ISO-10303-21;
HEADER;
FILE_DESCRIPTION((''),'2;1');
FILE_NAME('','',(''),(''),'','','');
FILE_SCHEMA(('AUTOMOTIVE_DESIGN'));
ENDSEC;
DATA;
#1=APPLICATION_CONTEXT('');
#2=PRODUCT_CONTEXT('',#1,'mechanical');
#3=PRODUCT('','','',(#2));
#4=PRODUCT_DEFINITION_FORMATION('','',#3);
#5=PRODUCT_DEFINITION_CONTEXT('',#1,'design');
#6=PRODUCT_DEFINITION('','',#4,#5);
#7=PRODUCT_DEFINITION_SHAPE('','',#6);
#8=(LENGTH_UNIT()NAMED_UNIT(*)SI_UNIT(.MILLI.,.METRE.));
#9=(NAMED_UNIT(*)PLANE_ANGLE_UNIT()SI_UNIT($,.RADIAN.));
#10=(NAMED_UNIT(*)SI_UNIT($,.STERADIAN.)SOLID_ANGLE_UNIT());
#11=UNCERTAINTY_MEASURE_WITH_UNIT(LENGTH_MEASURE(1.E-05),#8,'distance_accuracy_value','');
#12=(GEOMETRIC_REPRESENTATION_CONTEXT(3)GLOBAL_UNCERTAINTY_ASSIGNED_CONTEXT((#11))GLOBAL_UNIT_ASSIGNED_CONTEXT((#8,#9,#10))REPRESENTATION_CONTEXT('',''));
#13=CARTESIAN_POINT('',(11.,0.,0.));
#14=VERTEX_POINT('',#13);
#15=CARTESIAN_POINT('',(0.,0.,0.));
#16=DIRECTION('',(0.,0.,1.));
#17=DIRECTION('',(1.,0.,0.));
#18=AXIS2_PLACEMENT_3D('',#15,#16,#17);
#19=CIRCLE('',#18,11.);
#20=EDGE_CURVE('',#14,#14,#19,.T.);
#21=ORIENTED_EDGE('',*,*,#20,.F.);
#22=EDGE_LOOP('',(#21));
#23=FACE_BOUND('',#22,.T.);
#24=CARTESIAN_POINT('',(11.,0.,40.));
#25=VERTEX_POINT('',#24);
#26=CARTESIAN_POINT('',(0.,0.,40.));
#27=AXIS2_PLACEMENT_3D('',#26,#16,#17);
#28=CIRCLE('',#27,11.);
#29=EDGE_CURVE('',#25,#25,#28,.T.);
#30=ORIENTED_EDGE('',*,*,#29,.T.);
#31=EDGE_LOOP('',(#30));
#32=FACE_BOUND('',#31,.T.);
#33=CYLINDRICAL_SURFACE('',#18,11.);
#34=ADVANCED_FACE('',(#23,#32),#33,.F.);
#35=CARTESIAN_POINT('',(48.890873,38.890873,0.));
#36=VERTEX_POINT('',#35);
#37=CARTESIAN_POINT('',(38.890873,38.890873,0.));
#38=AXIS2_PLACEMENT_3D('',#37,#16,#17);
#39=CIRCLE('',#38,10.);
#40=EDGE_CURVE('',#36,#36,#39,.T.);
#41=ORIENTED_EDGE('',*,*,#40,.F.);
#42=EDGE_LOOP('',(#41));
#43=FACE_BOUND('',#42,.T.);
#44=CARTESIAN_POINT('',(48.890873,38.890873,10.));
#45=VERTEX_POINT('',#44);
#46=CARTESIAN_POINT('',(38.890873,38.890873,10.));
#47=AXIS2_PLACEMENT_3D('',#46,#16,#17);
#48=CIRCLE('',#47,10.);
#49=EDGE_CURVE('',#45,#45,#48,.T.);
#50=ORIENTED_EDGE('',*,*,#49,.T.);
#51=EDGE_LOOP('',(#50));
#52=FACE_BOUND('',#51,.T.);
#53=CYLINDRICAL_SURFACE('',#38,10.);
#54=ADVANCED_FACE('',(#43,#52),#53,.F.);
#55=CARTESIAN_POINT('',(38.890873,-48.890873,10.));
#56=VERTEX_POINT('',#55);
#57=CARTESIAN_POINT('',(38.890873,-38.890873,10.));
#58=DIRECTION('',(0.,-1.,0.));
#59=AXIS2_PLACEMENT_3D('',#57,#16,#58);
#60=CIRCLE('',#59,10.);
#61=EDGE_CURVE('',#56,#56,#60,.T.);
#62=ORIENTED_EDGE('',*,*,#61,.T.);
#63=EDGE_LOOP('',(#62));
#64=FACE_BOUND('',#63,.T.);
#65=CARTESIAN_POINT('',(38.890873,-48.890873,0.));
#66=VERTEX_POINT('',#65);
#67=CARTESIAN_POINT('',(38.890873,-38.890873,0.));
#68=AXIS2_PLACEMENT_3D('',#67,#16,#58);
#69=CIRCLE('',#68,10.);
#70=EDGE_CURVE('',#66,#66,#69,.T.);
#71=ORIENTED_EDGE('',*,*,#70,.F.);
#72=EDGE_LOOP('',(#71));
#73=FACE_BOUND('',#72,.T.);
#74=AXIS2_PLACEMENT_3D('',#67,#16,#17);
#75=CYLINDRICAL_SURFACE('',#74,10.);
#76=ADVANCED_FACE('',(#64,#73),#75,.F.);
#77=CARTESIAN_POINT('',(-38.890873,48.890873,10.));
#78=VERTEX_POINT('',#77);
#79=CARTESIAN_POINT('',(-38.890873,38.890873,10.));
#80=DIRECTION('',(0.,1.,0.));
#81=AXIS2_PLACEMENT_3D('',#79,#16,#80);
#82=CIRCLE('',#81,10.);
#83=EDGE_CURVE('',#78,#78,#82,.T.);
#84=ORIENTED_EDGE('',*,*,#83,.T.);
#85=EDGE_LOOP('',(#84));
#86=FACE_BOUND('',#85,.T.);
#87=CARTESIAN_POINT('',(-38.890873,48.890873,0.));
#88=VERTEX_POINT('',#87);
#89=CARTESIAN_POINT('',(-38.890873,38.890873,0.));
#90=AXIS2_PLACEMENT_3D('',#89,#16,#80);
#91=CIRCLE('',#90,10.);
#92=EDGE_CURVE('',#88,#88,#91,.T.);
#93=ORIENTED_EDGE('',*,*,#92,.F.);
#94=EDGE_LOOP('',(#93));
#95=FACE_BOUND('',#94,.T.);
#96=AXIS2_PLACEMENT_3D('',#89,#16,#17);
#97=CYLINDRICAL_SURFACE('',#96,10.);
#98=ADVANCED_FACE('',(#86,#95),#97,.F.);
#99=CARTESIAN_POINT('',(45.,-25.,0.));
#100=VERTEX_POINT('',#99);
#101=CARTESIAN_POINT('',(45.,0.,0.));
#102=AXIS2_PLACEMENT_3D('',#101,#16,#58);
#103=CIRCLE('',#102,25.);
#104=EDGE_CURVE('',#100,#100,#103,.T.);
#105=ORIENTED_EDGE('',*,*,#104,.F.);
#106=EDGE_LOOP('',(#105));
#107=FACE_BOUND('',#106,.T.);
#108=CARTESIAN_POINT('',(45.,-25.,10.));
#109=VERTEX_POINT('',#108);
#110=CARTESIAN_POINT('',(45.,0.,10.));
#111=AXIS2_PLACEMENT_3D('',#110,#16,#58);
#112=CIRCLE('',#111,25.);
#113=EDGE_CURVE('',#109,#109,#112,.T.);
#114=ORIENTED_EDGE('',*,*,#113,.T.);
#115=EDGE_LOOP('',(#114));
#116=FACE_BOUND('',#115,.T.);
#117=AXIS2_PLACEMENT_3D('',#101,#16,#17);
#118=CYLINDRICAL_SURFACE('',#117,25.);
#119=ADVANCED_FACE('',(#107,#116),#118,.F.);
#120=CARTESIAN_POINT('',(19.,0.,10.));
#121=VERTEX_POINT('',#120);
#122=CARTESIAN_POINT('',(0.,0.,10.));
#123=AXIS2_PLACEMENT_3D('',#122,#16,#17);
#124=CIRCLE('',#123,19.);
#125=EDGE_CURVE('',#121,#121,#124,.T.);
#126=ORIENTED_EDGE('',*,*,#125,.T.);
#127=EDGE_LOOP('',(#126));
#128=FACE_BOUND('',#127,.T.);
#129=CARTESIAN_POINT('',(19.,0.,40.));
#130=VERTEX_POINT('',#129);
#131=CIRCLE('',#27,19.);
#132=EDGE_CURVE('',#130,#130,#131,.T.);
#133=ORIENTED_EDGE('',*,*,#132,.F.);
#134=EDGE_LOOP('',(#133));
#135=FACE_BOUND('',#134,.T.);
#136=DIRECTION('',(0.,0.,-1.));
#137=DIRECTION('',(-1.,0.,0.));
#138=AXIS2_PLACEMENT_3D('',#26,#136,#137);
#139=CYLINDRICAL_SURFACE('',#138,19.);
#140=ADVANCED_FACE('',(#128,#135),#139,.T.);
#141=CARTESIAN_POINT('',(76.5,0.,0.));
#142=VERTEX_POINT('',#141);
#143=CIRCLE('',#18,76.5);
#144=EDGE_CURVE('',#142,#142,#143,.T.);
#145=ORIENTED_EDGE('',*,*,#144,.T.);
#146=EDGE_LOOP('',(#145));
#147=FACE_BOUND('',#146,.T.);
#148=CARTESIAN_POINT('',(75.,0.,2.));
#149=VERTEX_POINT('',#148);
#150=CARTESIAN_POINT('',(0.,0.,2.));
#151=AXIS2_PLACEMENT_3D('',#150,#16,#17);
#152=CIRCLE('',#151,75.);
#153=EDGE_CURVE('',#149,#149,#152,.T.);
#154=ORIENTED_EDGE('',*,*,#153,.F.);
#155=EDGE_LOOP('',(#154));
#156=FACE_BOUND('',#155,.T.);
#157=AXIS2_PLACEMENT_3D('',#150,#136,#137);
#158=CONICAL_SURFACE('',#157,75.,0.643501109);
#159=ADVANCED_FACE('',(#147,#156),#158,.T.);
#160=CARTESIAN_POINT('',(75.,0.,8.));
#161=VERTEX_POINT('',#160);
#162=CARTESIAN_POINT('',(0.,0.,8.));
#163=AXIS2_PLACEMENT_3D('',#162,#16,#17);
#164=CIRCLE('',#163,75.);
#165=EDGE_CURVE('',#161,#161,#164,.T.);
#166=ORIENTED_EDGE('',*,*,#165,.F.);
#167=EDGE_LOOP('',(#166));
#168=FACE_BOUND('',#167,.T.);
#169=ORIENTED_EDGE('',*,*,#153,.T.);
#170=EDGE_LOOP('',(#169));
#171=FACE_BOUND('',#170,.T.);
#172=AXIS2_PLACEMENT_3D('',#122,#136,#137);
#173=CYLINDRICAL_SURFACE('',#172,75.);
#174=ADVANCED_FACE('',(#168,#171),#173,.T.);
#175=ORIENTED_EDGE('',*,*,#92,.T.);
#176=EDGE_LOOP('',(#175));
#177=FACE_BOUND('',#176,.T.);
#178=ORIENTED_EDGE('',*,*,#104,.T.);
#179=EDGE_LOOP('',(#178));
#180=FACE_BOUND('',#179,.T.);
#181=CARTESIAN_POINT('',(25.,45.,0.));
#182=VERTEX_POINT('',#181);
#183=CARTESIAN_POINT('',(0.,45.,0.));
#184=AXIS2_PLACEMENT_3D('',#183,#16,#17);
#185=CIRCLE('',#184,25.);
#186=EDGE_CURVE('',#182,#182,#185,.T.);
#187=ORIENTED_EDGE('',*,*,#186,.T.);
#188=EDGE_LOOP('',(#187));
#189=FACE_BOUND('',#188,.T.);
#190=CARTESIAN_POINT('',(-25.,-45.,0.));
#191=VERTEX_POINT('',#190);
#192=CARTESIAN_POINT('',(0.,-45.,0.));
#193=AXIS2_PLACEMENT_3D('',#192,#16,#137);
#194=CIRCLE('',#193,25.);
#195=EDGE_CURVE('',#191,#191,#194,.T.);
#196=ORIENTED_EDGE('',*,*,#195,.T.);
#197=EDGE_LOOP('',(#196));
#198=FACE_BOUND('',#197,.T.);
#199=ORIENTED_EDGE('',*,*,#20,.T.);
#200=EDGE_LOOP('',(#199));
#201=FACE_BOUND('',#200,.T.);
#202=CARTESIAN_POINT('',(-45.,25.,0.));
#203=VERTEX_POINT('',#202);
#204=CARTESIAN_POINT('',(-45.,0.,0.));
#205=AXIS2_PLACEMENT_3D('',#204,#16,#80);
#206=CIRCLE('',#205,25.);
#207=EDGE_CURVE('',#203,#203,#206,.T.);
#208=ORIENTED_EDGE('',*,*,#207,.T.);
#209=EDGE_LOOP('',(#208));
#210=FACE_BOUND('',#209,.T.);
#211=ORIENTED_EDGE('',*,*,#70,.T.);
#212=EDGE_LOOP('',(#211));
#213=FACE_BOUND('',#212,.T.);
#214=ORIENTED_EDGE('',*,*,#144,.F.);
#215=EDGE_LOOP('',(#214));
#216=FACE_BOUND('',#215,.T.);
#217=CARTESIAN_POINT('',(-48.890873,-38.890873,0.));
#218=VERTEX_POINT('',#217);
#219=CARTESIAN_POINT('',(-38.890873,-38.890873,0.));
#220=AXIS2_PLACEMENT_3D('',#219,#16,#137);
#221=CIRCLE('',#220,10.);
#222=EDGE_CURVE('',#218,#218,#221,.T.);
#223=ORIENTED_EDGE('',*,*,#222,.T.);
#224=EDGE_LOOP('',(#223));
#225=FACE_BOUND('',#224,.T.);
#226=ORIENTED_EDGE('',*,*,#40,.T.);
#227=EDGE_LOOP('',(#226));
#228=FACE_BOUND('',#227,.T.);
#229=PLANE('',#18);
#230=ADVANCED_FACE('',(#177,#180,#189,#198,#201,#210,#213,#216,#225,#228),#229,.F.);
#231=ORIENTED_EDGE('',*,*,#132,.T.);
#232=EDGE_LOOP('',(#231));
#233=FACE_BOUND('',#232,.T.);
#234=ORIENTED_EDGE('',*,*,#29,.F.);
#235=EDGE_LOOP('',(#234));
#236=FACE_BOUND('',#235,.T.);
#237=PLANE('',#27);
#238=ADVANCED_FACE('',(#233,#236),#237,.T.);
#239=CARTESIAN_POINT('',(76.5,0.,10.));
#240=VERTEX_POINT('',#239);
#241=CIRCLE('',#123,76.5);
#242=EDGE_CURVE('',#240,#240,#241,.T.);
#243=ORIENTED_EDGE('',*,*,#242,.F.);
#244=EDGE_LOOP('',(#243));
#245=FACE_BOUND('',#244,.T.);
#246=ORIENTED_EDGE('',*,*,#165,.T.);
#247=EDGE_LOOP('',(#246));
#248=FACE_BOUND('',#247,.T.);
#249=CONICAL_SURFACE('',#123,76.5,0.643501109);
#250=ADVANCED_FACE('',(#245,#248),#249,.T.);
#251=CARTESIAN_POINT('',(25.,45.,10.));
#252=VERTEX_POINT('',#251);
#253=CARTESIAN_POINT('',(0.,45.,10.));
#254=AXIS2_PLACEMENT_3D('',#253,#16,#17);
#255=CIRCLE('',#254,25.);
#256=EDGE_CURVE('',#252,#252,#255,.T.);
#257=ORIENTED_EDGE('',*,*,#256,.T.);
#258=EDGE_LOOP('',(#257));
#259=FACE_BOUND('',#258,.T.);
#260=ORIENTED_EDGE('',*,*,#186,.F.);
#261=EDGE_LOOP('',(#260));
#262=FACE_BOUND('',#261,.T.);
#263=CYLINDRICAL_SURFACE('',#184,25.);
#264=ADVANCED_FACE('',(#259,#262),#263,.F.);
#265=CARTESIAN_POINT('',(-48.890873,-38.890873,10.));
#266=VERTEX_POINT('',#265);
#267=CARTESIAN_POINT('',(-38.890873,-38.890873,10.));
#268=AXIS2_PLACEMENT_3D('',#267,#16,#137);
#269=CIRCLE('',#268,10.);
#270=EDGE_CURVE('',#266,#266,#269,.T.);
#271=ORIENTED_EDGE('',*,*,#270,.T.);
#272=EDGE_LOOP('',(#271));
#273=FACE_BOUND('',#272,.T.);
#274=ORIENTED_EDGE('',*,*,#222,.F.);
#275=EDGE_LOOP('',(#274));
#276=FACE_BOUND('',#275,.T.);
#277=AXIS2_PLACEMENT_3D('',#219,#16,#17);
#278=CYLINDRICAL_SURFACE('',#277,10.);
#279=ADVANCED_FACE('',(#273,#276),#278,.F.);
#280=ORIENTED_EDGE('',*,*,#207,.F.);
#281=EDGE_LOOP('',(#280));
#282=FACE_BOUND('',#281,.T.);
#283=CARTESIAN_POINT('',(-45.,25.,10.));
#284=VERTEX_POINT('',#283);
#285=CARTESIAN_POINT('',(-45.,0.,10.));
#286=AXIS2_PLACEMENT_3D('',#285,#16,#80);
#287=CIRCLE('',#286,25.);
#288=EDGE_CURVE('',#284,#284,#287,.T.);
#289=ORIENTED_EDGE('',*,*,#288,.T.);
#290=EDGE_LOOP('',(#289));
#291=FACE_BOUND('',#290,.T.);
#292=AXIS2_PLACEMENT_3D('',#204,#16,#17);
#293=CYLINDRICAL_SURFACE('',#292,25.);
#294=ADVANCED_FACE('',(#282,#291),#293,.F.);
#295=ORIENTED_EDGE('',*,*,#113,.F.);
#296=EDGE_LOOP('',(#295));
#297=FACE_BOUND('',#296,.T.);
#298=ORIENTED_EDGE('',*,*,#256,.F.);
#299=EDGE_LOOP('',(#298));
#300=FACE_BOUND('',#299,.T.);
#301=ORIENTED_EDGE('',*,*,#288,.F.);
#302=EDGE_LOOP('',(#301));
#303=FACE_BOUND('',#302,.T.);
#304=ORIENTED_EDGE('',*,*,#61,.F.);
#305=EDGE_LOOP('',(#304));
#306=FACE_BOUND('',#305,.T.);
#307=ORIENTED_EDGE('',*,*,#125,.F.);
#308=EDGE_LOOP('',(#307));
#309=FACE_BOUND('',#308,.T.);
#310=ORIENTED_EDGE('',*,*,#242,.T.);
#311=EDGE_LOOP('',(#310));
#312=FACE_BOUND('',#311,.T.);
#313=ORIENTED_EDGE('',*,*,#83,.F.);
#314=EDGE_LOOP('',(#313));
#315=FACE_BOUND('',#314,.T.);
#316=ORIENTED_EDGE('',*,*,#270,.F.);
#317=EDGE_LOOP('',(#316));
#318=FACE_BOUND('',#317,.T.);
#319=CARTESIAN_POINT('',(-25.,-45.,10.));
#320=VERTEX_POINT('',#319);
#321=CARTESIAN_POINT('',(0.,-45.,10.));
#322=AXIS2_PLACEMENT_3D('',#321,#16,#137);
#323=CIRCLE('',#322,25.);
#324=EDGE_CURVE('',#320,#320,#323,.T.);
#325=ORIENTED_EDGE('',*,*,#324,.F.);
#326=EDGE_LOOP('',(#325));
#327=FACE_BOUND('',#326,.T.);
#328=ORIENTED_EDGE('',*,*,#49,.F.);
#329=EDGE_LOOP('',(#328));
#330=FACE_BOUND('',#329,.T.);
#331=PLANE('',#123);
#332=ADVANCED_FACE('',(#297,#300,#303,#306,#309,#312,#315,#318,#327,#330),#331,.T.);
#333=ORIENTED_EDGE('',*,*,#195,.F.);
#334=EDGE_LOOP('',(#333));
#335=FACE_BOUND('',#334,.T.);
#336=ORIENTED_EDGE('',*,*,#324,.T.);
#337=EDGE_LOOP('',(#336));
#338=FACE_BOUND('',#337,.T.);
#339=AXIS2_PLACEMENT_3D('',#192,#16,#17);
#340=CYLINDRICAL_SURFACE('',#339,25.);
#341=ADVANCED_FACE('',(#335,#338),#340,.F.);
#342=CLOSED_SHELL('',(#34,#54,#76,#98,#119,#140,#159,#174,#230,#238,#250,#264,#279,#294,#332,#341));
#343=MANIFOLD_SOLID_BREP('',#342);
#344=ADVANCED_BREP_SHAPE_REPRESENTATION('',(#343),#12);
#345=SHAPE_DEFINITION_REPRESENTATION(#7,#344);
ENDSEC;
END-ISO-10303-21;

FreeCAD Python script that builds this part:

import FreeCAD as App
import Part
import Sketcher
from FreeCAD import Vector

doc = App.newDocument("Part")
params = doc.addObject("Spreadsheet::Sheet", "Params")
for row, (alias, value) in enumerate([
    ("sketch1_diameter", "150 mm"),
    ("pad1_length", "10 mm"),
    ("sketch2_diameter", "38 mm"),
    ("pad2_length", "30 mm"),
    ("sketch3_diameter", "22 mm"),
    ("sketch4_height", "2 mm"),
    ("sketch4_width", "1.5 mm"),
    ("revolution_angle", "360 deg"),
    ("sketch5_diameter", "50 mm"),
    ("sketch6_diameter", "20 mm"),
], start=1):
    params.set(f"A{row}", alias)
    params.set(f"B{row}", "=" + value)
    params.setAlias(f"B{row}", alias)

body = doc.addObject("PartDesign::Body", "Body")

# Sketch on XY plane
sketch1 = body.newObject("Sketcher::SketchObject", "Sketch")
sketch1.AttachmentSupport = (doc.getObject("XY_Plane"), [""])
sketch1.MapMode = "FlatFace"
sketch1.addGeometry(Part.Circle(Vector(0, 0, 0), Vector(0, 0, 1), 75), False)
sketch1.addConstraint([
    Sketcher.Constraint("Coincident", 0, 3, -1, 1),
    Sketcher.Constraint("Diameter", 0, 150.0),
])
sketch1.setExpression("Constraints[1]", "Params.sketch1_diameter")
pad1 = body.newObject("PartDesign::Pad", "Pad")
pad1.Profile = sketch1
pad1.setExpression("Length", "Params.pad1_length")

# Sketch on XY plane
sketch2 = body.newObject("Sketcher::SketchObject", "Sketch001")
sketch2.AttachmentSupport = (doc.getObject("XY_Plane"), [""])
sketch2.MapMode = "FlatFace"
sketch2.AttachmentOffset = App.Placement(Vector(0, 0, 10), App.Rotation())
sketch2.addGeometry(Part.Circle(Vector(0, 0, 0), Vector(0, 0, 1), 19), False)
sketch2.addConstraint([
    Sketcher.Constraint("Coincident", 0, 3, -1, 1),
    Sketcher.Constraint("Diameter", 0, 38.0),
])
sketch2.setExpression("Constraints[1]", "Params.sketch2_diameter")
pad2 = body.newObject("PartDesign::Pad", "Pad001")
pad2.Profile = sketch2
pad2.setExpression("Length", "Params.pad2_length")

# Sketch on XY plane
sketch3 = body.newObject("Sketcher::SketchObject", "Sketch002")
sketch3.AttachmentSupport = (doc.getObject("XY_Plane"), [""])
sketch3.MapMode = "FlatFace"
sketch3.AttachmentOffset = App.Placement(Vector(0, 0, 40), App.Rotation())
sketch3.addGeometry(Part.Circle(Vector(0, 0, 0), Vector(0, 0, 1), 11), False)
sketch3.addConstraint([
    Sketcher.Constraint("Coincident", 0, 3, -1, 1),
    Sketcher.Constraint("Diameter", 0, 22.0),
])
sketch3.setExpression("Constraints[1]", "Params.sketch3_diameter")
pocket1 = body.newObject("PartDesign::Pocket", "Pocket")
pocket1.Profile = sketch3
pocket1.Type = "ThroughAll"

# Sketch on XZ plane
sketch4 = body.newObject("Sketcher::SketchObject", "Sketch003")
sketch4.AttachmentSupport = (doc.getObject("XZ_Plane"), [""])
sketch4.MapMode = "FlatFace"
sketch4.addGeometry([
    Part.LineSegment(Vector(76.5, 0, 0), Vector(75, 0, 0)),  # 0
    Part.LineSegment(Vector(75, 0, 0), Vector(75, 2, 0)),  # 1
    Part.LineSegment(Vector(75, 2, 0), Vector(76.5, 0, 0)),  # 2
    Part.LineSegment(Vector(75, 10, 0), Vector(76.5, 10, 0)),  # 3
    Part.LineSegment(Vector(76.5, 10, 0), Vector(75, 8, 0)),  # 4
    Part.LineSegment(Vector(75, 8, 0), Vector(75, 10, 0)),  # 5
], False)
sketch4.addConstraint([
    Sketcher.Constraint("Coincident", 0, 2, 1, 1),
    Sketcher.Constraint("Coincident", 1, 2, 2, 1),
    Sketcher.Constraint("Coincident", 2, 2, 0, 1),
    Sketcher.Constraint("Coincident", 3, 2, 4, 1),
    Sketcher.Constraint("Coincident", 4, 2, 5, 1),
    Sketcher.Constraint("Coincident", 5, 2, 3, 1),
    Sketcher.Constraint("Horizontal", 0),
    Sketcher.Constraint("Vertical", 1),
    Sketcher.Constraint("Horizontal", 3),
    Sketcher.Constraint("Vertical", 5),
    Sketcher.Constraint("PointOnObject", 0, 2, -1),
    Sketcher.Constraint("Vertical", 2, 2, 3, 2),
    Sketcher.Constraint("Vertical", 1, 2, 4, 2),
    Sketcher.Constraint("Equal", 1, 5),
    Sketcher.Constraint("DistanceY", 1, 1, 1, 2, 2.0),
    Sketcher.Constraint("DistanceX", 0, 2, 0, 1, 1.5),
    Sketcher.Constraint("DistanceX", -1, 1, 0, 2, 75.0),
    Sketcher.Constraint("DistanceY", -1, 1, 3, 2, 10.0),
])
sketch4.setExpression("Constraints[14]", "Params.sketch4_height")
sketch4.setExpression("Constraints[15]", "Params.sketch4_width")
revolution = body.newObject("PartDesign::Revolution", "Revolution")
revolution.Profile = sketch4
revolution.ReferenceAxis = (sketch4, ["V_Axis"])
revolution.setExpression("Angle", "Params.revolution_angle")

# Sketch on XY plane
sketch5 = body.newObject("Sketcher::SketchObject", "Sketch004")
sketch5.AttachmentSupport = (doc.getObject("XY_Plane"), [""])
sketch5.MapMode = "FlatFace"
sketch5.AttachmentOffset = App.Placement(Vector(0, 0, 10), App.Rotation())
sketch5.addGeometry(Part.Circle(Vector(0, 45, 0), Vector(0, 0, 1), 25), False)
sketch5.addConstraint([
    Sketcher.Constraint("PointOnObject", 0, 3, -2),
    Sketcher.Constraint("Diameter", 0, 50.0),
    Sketcher.Constraint("DistanceY", -1, 1, 0, 3, 45.0),
])
sketch5.setExpression("Constraints[1]", "Params.sketch5_diameter")
pocket2 = body.newObject("PartDesign::Pocket", "Pocket001")
pocket2.Profile = sketch5
pocket2.Type = "ThroughAll"
doc.recompute()

polarpattern = body.newObject("PartDesign::PolarPattern", "PolarPattern")
polarpattern.Originals = [pocket2]
polarpattern.Axis = (doc.getObject("Z_Axis"), [""])
polarpattern.Angle = 360
polarpattern.Occurrences = 4
body.Tip = polarpattern

# Sketch on XY plane
sketch6 = body.newObject("Sketcher::SketchObject", "Sketch005")
sketch6.AttachmentSupport = (doc.getObject("XY_Plane"), [""])
sketch6.MapMode = "FlatFace"
sketch6.AttachmentOffset = App.Placement(Vector(0, 0, 10), App.Rotation())
sketch6.addGeometry(Part.Circle(Vector(39, 39, 0), Vector(0, 0, 1), 10), False)
sketch6.addConstraint([
    Sketcher.Constraint("Diameter", 0, 20.0),
    Sketcher.Constraint("DistanceX", -1, 1, 0, 3, 38.890873),
    Sketcher.Constraint("DistanceY", -1, 1, 0, 3, 38.890873),
])
sketch6.setExpression("Constraints[0]", "Params.sketch6_diameter")
pocket3 = body.newObject("PartDesign::Pocket", "Pocket002")
pocket3.Profile = sketch6
pocket3.Type = "ThroughAll"
doc.recompute()

polarpattern2 = body.newObject("PartDesign::PolarPattern", "PolarPattern001")
polarpattern2.Originals = [pocket3]
polarpattern2.Axis = (doc.getObject("Z_Axis"), [""])
polarpattern2.Angle = 360
polarpattern2.Occurrences = 4
body.Tip = polarpattern2

doc.recompute()
